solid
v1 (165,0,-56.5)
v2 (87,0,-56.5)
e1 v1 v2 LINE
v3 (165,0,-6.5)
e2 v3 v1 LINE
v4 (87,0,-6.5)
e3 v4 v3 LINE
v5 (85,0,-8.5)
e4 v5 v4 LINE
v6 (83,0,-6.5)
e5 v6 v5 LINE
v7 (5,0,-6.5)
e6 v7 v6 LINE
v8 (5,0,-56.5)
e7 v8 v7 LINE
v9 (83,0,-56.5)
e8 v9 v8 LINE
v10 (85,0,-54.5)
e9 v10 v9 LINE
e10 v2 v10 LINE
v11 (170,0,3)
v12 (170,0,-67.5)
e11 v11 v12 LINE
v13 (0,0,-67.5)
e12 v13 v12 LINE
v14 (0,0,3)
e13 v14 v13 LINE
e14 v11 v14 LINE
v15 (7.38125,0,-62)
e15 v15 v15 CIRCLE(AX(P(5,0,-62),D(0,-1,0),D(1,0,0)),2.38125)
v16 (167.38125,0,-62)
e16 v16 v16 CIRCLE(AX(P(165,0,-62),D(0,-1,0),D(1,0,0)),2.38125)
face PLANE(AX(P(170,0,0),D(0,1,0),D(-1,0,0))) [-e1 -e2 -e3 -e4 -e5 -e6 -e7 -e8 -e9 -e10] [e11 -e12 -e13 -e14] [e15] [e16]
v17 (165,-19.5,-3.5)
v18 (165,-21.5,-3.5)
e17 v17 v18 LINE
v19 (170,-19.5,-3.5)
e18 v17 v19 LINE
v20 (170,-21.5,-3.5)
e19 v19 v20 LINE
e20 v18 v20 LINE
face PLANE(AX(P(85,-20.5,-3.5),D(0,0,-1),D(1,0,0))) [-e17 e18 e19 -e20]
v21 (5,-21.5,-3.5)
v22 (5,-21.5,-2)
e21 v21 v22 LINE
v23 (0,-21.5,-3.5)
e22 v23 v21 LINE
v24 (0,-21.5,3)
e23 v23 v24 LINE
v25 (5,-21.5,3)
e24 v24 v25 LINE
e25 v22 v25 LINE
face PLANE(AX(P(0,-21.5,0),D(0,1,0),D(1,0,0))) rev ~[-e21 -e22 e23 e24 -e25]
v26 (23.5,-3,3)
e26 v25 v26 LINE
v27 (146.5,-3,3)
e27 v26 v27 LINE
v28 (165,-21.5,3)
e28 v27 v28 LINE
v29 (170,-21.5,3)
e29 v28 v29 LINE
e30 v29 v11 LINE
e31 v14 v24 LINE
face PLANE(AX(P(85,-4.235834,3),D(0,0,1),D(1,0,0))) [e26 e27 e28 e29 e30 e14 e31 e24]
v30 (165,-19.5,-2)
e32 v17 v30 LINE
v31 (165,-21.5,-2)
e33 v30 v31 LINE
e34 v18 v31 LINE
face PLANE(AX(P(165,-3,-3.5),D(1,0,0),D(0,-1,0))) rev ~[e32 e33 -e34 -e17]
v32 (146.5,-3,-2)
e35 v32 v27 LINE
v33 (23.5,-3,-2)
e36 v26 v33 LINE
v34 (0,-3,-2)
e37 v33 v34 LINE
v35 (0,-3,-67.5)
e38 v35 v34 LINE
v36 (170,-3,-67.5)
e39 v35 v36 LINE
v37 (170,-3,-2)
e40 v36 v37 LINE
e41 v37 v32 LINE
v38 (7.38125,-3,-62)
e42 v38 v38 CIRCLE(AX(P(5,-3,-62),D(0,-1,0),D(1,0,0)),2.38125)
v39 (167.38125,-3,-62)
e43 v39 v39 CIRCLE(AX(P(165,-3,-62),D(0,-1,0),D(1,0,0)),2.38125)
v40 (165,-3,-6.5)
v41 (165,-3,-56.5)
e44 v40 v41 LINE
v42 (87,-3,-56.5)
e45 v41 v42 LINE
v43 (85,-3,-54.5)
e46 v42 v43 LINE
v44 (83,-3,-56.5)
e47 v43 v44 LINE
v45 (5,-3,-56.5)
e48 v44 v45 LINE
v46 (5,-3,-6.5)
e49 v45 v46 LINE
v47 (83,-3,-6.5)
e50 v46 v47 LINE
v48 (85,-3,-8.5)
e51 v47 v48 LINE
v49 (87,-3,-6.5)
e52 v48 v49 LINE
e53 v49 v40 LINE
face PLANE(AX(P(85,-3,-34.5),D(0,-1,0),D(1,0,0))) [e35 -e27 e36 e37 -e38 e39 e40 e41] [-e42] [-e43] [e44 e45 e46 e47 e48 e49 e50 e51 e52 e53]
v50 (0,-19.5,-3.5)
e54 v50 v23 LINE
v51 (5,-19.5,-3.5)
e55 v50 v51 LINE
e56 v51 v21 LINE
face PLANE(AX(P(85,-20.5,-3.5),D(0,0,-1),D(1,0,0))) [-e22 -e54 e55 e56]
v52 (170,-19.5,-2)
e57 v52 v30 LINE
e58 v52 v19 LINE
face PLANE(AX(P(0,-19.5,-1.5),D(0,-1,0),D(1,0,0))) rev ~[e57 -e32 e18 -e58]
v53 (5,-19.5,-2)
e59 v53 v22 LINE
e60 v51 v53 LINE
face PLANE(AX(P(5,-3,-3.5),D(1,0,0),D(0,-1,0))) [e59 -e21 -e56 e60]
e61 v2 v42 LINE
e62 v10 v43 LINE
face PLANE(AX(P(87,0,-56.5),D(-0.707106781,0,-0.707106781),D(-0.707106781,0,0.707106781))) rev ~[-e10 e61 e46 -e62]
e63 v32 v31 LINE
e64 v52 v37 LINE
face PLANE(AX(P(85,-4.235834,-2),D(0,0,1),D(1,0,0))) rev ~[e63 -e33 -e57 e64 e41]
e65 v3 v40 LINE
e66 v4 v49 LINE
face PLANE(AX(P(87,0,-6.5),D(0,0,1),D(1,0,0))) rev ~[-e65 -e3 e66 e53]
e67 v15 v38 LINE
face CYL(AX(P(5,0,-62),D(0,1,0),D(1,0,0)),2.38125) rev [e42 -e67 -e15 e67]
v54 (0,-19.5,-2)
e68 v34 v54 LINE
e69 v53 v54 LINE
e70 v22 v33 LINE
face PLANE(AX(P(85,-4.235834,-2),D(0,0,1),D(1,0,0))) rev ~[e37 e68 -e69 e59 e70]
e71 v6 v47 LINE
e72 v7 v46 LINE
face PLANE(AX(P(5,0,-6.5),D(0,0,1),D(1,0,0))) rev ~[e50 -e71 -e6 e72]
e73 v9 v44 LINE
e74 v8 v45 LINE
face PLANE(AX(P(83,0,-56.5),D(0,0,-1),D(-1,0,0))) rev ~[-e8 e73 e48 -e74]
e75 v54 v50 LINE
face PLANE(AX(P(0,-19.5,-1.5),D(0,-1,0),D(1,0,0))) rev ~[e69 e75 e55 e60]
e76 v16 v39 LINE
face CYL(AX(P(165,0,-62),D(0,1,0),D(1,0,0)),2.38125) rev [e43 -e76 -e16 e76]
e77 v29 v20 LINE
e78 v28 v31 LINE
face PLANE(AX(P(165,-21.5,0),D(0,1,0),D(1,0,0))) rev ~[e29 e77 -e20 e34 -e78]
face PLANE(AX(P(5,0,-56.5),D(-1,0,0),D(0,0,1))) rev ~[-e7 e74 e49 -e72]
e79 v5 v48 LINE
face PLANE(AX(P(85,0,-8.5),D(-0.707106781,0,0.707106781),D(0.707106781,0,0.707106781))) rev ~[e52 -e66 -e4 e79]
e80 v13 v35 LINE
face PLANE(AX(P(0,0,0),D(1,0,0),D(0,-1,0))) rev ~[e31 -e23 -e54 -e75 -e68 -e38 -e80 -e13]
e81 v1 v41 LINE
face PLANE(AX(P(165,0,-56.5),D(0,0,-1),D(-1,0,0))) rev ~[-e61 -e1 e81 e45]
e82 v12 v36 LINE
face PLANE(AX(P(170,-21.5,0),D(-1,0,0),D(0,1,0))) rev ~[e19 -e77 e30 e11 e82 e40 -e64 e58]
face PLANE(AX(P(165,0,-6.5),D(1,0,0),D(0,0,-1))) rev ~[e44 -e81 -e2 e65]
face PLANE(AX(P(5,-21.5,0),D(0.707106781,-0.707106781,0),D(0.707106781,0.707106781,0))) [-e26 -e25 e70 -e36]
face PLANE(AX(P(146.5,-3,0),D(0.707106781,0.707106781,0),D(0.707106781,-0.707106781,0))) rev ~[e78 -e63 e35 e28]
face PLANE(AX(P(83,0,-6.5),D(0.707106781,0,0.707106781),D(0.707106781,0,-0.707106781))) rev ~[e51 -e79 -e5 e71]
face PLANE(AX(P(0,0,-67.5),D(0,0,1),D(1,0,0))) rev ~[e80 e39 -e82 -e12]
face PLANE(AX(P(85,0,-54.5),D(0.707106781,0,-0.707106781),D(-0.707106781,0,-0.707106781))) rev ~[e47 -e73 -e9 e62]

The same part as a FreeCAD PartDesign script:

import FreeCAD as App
import Part
import Sketcher

V = App.Vector
Q = App.Units.Quantity


def add_polygon(sketch, points):
    """Adds a closed chain of lines whose ends are joined by coincident constraints."""
    first, n = sketch.GeometryCount, len(points)
    for a, b in zip(points, points[1:] + points[:1]):
        sketch.addGeometry(Part.LineSegment(App.Vector(*a, 0), App.Vector(*b, 0)), False)
    for i in range(n):
        sketch.addConstraint(Sketcher.Constraint("Coincident", first + i, 2, first + (i + 1) % n, 1))

doc = App.newDocument("Part")
params = doc.addObject("Spreadsheet::Sheet", "Params")
for row, (alias, value) in enumerate([
    ("sketch1_width", "170 mm"),
    ("sketch1_width2", "78 mm"),
    ("sketch1_height", "66 mm"),
    ("sketch1_height2", "50 mm"),
    ("pad1_length", "3 mm"),
    ("sketch2_width", "170 mm"),
    ("sketch2_height", "1.5 mm"),
    ("pad2_length", "21.5 mm"),
    ("sketch3_width", "170 mm"),
    ("sketch3_height", "2 mm"),
    ("pad3_length", "2 mm"),
    ("sketch4_width", "160 mm"),
    ("sketch4_height", "18.5 mm"),
    ("sketch5_width", "5 mm"),
    ("sketch5_width2", "123 mm"),
    ("sketch5_width3", "170 mm"),
    ("sketch5_height", "21.5 mm"),
    ("pad4_length", "3 mm"),
    ("pad4_length2", "2 mm"),
], start=1):
    params.set(f"A{row}", alias)
    params.set(f"B{row}", "=" + value)
    params.setAlias(f"B{row}", alias)

body = doc.addObject("PartDesign::Body", "Body")

sketch1 = body.newObject("Sketcher::SketchObject", "Sketch")
sketch1.AttachmentSupport = (doc.getObject("XZ_Plane"), [""])
sketch1.MapMode = "FlatFace"
add_polygon(sketch1, [(0, -1.5), (0, -67.5), (170, -67.5), (170, -1.5)])
sketch1.addGeometry(Part.Circle(V(5, -62, 0), V(0, 0, 1), 2.4), False)
sketch1.addGeometry(Part.Circle(V(165, -62, 0), V(0, 0, 1), 2.4), False)
add_polygon(sketch1, [(83, -56.5), (5, -56.5), (5, -6.5), (83, -6.5), (85, -8.5), (87, -6.5), (165, -6.5), (165, -56.5), (87, -56.5), (85, -54.5)])
sketch1.addConstraint([
    Sketcher.Constraint("Vertical", 0),
    Sketcher.Constraint("Horizontal", 1),
    Sketcher.Constraint("Vertical", 2),
    Sketcher.Constraint("Horizontal", 3),
    Sketcher.Constraint("Horizontal", 6),
    Sketcher.Constraint("Vertical", 7),
    Sketcher.Constraint("Horizontal", 8),
    Sketcher.Constraint("Horizontal", 11),
    Sketcher.Constraint("Vertical", 12),
    Sketcher.Constraint("Horizontal", 13),
    Sketcher.Constraint("Equal", 4, 5),
    Sketcher.Constraint("PointOnObject", 0, 2, -2),
    Sketcher.Constraint("Perpendicular", 9, 10),
    Sketcher.Constraint("Perpendicular", 10, 14),
    Sketcher.Constraint("Perpendicular", 14, 15),
    Sketcher.Constraint("Horizontal", 4, 3, 5, 3),
    Sketcher.Constraint("Horizontal", 8, 2, 10, 2),
    Sketcher.Constraint("Horizontal", 6, 2, 12, 2),
    Sketcher.Constraint("Vertical", 4, 3, 6, 2),
    Sketcher.Constraint("Vertical", 5, 3, 11, 2),
    Sketcher.Constraint("Vertical", 10, 2, 13, 2),
    Sketcher.Constraint("Vertical", 9, 2, 14, 2),
    Sketcher.Constraint("Vertical", 8, 2, 15, 2),
    Sketcher.Constraint("Equal", 8, 11),
    Sketcher.Constraint("DistanceX", 1, 1, 1, 2, Q("170 mm")),
    Sketcher.Constraint("DistanceX", 6, 2, 6, 1, Q("78 mm")),
    Sketcher.Constraint("DistanceY", 0, 2, 0, 1, Q("66 mm")),
    Sketcher.Constraint("DistanceY", 7, 1, 7, 2, Q("50 mm")),
    Sketcher.Constraint("DistanceX", -1, 1, 4, 3, Q("5 mm")),
    Sketcher.Constraint("DistanceY", 4, 3, -1, 1, Q("62 mm")),
    Sketcher.Constraint("DistanceX", -1, 1, 5, 3, Q("165 mm")),
    Sketcher.Constraint("DistanceY", 0, 2, 6, 2, Q("11 mm")),
    Sketcher.Constraint("Diameter", 4, Q("4.7625 mm")),
    Sketcher.Constraint("DistanceY", 0, 2, -1, 1, Q("67.5 mm")),
])
sketch1.setExpression("Constraints[38]", "Params.sketch1_width")
sketch1.setExpression("Constraints[39]", "Params.sketch1_width2")
sketch1.setExpression("Constraints[40]", "Params.sketch1_height")
sketch1.setExpression("Constraints[41]", "Params.sketch1_height2")
pad1 = body.newObject("PartDesign::Pad", "Pad")
pad1.Profile = sketch1
pad1.setExpression("Length", "Params.pad1_length")

sketch2 = body.newObject("Sketcher::SketchObject", "Sketch001")
sketch2.AttachmentSupport = (doc.getObject("XZ_Plane"), [""])
sketch2.MapMode = "FlatFace"
add_polygon(sketch2, [(0, 0), (0, -1.5), (170, -1.5), (170, 0)])
sketch2.addConstraint([
    Sketcher.Constraint("Vertical", 0),
    Sketcher.Constraint("Horizontal", 1),
    Sketcher.Constraint("Vertical", 2),
    Sketcher.Constraint("Horizontal", 3),
    Sketcher.Constraint("Coincident", 3, 2, -1, 1),
    Sketcher.Constraint("DistanceX", 1, 1, 1, 2, Q("170 mm")),
    Sketcher.Constraint("DistanceY", 0, 2, 0, 1, Q("1.5 mm")),
])
sketch2.setExpression("Constraints[9]", "Params.sketch2_width")
sketch2.setExpression("Constraints[10]", "Params.sketch2_height")
pad2 = body.newObject("PartDesign::Pad", "Pad001")
pad2.Profile = sketch2
pad2.setExpression("Length", "Params.pad2_length")

sketch3 = body.newObject("Sketcher::SketchObject", "Sketch002")
sketch3.AttachmentSupport = (doc.getObject("XY_Plane"), [""])
sketch3.MapMode = "FlatFace"
sketch3.AttachmentOffset = App.Placement(V(0, 0, -1.5), App.Rotation())
add_polygon(sketch3, [(0, -21.5), (0, -19.5), (170, -19.5), (170, -21.5)])
sketch3.addConstraint([
    Sketcher.Constraint("Vertical", 0),
    Sketcher.Constraint("Horizontal", 1),
    Sketcher.Constraint("Vertical", 2),
    Sketcher.Constraint("Horizontal", 3),
    Sketcher.Constraint("PointOnObject", 0, 2, -2),
    Sketcher.Constraint("DistanceX", 1, 1, 1, 2, Q("170 mm")),
    Sketcher.Constraint("DistanceY", 0, 1, 0, 2, Q("2 mm")),
    Sketcher.Constraint("DistanceY", 0, 2, -1, 1, Q("19.5 mm")),
])
sketch3.setExpression("Constraints[9]", "Params.sketch3_width")
sketch3.setExpression("Constraints[10]", "Params.sketch3_height")
pad3 = body.newObject("PartDesign::Pad", "Pad002")
pad3.Profile = sketch3
pad3.setExpression("Length", "Params.pad3_length")
pad3.Reversed = True

sketch4 = body.newObject("Sketcher::SketchObject", "Sketch003")
sketch4.AttachmentSupport = (doc.getObject("XY_Plane"), [""])
sketch4.MapMode = "FlatFace"
sketch4.AttachmentOffset = App.Placement(V(0, 0, -3.5), App.Rotation())
add_polygon(sketch4, [(5, -22), (5, -3), (165, -3), (165, -22)])
sketch4.addConstraint([
    Sketcher.Constraint("Vertical", 0),
    Sketcher.Constraint("Horizontal", 1),
    Sketcher.Constraint("Vertical", 2),
    Sketcher.Constraint("Horizontal", 3),
    Sketcher.Constraint("DistanceX", 1, 1, 1, 2, Q("160 mm")),
    Sketcher.Constraint("DistanceY", 0, 1, 0, 2, Q("18.5 mm")),
    Sketcher.Constraint("DistanceX", -1, 1, 0, 2, Q("5 mm")),
    Sketcher.Constraint("DistanceY", 0, 2, -1, 1, Q("3 mm")),
])
sketch4.setExpression("Constraints[8]", "Params.sketch4_width")
sketch4.setExpression("Constraints[9]", "Params.sketch4_height")
pocket1 = body.newObject("PartDesign::Pocket", "Pocket")
pocket1.Profile = sketch4
pocket1.Type = "ThroughAll"
pocket1.Reversed = True

sketch5 = body.newObject("Sketcher::SketchObject", "Sketch004")
sketch5.AttachmentSupport = (doc.getObject("XY_Plane"), [""])
sketch5.MapMode = "FlatFace"
add_polygon(sketch5, [(0, 0), (0, -22), (5, -22), (24, -3), (146, -3), (165, -22), (170, -22), (170, 0)])
sketch5.addConstraint([
    Sketcher.Constraint("Vertical", 0),
    Sketcher.Constraint("Horizontal", 1),
    Sketcher.Constraint("Horizontal", 3),
    Sketcher.Constraint("Horizontal", 5),
    Sketcher.Constraint("Vertical", 6),
    Sketcher.Constraint("Horizontal", 7),
    Sketcher.Constraint("Coincident", 7, 2, -1, 1),
    Sketcher.Constraint("Perpendicular", 2, 4),
    Sketcher.Constraint("Horizontal", 1, 2, 4, 2),
    Sketcher.Constraint("Equal", 1, 5),
    Sketcher.Constraint("Equal", 2, 4),
    Sketcher.Constraint("DistanceX", 1, 1, 1, 2, Q("5 mm")),
    Sketcher.Constraint("DistanceX", 3, 1, 3, 2, Q("123 mm")),
    Sketcher.Constraint("DistanceX", 7, 2, 7, 1, Q("170 mm")),
    Sketcher.Constraint("DistanceY", 0, 2, 0, 1, Q("21.5 mm")),
])
sketch5.setExpression("Constraints[19]", "Params.sketch5_width")
sketch5.setExpression("Constraints[20]", "Params.sketch5_width2")
sketch5.setExpression("Constraints[21]", "Params.sketch5_width3")
sketch5.setExpression("Constraints[22]", "Params.sketch5_height")
pad4 = body.newObject("PartDesign::Pad", "Pad003")
pad4.Profile = sketch5
pad4.Type = "TwoLengths"
pad4.setExpression("Length", "Params.pad4_length")
pad4.setExpression("Length2", "Params.pad4_length2")

doc.recompute()
